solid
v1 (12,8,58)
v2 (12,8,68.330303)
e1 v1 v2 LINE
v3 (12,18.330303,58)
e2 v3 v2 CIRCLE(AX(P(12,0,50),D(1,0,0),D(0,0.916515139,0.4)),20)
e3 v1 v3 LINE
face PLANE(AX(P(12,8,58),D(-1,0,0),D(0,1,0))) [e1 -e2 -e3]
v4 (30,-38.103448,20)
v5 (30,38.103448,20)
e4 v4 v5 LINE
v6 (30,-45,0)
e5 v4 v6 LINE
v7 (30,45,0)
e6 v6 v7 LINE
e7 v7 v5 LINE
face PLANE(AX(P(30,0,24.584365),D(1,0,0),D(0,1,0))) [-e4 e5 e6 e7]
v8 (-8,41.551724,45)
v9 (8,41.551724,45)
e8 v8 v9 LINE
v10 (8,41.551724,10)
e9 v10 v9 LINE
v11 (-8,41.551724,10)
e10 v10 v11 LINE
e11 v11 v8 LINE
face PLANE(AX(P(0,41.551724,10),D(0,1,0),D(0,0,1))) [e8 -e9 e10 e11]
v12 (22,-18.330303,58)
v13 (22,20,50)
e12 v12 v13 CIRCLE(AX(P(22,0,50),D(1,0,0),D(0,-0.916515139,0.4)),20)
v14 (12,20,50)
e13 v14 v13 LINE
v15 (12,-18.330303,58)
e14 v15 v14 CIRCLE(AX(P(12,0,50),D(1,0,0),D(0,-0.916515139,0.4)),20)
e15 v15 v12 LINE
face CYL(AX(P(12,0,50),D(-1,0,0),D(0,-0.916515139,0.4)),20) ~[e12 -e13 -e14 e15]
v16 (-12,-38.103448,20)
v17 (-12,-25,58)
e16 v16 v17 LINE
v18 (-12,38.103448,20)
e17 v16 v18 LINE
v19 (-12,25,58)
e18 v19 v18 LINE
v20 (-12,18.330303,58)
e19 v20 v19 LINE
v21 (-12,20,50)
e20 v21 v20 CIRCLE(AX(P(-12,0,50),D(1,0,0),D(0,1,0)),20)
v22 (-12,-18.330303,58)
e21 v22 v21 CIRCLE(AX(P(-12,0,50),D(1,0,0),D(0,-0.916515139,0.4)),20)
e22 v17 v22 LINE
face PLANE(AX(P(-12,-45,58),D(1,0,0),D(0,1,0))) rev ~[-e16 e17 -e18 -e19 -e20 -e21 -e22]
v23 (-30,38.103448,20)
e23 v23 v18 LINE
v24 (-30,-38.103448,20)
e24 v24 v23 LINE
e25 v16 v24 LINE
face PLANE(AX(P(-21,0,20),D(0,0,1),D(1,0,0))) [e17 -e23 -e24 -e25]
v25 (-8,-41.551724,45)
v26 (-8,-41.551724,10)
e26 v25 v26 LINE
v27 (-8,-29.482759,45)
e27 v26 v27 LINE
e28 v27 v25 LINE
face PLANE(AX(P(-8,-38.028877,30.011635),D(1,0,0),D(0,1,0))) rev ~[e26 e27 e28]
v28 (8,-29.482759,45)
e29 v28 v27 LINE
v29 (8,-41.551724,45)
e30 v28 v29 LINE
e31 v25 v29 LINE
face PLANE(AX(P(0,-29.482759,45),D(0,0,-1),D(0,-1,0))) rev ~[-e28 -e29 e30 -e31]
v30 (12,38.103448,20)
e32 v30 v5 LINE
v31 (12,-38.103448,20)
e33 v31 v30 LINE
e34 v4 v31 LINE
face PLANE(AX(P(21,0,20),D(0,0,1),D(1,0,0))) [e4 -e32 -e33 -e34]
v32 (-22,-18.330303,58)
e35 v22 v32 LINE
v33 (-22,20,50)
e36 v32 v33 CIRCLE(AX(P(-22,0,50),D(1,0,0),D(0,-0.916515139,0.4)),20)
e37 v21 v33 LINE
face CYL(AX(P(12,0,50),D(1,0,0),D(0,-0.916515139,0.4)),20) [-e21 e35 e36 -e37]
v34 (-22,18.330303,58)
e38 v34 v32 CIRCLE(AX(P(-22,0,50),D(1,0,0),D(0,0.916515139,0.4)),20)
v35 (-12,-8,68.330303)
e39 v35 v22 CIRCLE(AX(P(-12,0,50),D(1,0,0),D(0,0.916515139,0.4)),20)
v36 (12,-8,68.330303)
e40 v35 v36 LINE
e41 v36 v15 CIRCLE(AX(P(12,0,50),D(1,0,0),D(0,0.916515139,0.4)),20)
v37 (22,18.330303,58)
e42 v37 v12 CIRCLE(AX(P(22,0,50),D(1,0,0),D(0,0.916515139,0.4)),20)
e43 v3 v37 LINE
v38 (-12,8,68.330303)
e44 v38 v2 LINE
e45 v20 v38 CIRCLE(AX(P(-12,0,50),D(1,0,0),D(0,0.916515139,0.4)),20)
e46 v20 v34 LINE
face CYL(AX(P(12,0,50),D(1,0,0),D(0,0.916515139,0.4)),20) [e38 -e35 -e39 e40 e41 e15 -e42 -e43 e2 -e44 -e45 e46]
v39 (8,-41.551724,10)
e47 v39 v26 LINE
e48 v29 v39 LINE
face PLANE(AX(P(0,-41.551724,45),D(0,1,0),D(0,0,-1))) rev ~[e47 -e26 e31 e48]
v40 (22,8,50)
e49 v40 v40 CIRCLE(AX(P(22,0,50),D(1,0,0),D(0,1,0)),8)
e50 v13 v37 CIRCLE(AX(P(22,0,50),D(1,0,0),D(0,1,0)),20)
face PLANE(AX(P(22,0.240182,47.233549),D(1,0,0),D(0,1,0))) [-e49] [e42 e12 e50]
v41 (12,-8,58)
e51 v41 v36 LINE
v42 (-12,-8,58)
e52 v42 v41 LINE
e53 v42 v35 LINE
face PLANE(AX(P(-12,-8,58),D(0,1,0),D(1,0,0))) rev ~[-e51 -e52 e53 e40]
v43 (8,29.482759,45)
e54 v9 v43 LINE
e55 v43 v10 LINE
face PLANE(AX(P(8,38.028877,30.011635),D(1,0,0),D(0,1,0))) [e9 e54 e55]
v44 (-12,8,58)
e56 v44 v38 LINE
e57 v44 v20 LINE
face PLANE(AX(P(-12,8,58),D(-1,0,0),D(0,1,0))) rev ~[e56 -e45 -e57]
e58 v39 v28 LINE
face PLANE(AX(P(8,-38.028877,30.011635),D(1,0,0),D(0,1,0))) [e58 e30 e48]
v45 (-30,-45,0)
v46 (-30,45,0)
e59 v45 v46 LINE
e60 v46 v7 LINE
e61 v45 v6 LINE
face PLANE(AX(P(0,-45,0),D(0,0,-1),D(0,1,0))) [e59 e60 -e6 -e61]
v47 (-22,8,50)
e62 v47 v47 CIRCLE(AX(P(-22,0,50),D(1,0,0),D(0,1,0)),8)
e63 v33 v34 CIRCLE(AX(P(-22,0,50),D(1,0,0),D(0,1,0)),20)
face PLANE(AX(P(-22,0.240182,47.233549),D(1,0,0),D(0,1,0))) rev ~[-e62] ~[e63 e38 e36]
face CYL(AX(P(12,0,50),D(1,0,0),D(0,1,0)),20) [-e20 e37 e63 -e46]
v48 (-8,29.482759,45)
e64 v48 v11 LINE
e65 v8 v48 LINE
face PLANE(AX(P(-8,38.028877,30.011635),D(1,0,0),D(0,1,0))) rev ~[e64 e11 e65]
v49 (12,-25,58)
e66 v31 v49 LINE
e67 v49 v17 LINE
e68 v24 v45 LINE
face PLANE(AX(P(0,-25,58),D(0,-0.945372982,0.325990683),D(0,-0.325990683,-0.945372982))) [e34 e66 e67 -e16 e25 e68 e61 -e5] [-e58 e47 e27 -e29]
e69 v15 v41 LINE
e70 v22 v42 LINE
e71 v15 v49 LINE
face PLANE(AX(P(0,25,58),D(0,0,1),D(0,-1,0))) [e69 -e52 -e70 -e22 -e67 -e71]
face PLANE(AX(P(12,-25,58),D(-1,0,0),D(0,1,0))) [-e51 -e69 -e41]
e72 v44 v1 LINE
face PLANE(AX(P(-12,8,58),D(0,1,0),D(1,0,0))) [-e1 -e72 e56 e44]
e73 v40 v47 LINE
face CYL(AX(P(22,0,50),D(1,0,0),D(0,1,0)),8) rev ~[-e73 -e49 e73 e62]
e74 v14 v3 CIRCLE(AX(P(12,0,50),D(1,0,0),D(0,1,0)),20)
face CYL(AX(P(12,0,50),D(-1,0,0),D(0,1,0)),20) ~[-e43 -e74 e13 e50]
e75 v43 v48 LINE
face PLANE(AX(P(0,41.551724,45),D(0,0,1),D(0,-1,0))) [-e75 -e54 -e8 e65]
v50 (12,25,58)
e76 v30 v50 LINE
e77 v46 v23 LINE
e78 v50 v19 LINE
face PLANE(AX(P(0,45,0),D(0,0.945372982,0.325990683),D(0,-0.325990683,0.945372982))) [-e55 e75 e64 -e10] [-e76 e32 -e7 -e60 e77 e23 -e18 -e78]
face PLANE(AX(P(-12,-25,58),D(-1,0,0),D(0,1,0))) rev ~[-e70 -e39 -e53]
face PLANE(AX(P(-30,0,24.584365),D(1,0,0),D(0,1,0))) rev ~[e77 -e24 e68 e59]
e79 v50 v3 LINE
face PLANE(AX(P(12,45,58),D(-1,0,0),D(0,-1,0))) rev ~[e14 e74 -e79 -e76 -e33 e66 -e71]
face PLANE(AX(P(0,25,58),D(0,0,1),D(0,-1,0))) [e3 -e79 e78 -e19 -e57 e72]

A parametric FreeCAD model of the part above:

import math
import FreeCAD as App
import Part
import Sketcher


def add_polygon(sketch, points):
    """Adds a closed chain of lines whose ends are joined by coincident constraints."""
    first, n = sketch.GeometryCount, len(points)
    for a, b in zip(points, points[1:] + points[:1]):
        sketch.addGeometry(Part.LineSegment(App.Vector(*a, 0), App.Vector(*b, 0)), False)
    for i in range(n):
        sketch.addConstraint(Sketcher.Constraint("Coincident", first + i, 2, first + (i + 1) % n, 1))

doc = App.newDocument("Part")
body = doc.addObject("PartDesign::Body", "Body")

# Sketch on YZ plane
sketch1 = body.newObject("Sketcher::SketchObject", "Sketch")
sketch1.AttachmentSupport = (doc.getObject("YZ_Plane"), [""])
sketch1.MapMode = "FlatFace"
add_polygon(sketch1, [(-25, 58), (-45, 0), (45, 0), (25, 58)])  # lines 0-3
sketch1.addConstraint([
    Sketcher.Constraint("Horizontal", 1),
    Sketcher.Constraint("Horizontal", 3),
    Sketcher.Constraint("Symmetric", 0, 2, 1, 2, -1, 1),
    Sketcher.Constraint("Equal", 0, 2),
    Sketcher.Constraint("DistanceX", 1, 1, 1, 2, 90.0),
    Sketcher.Constraint("DistanceX", 3, 2, 3, 1, 50.0),
    Sketcher.Constraint("DistanceY", -1, 1, 2, 2, 58.0),
])
pad1 = body.newObject("PartDesign::Pad", "Pad")
pad1.Profile = sketch1
pad1.Length = 60
pad1.Midplane = True

# Sketch on XY plane
sketch2 = body.newObject("Sketcher::SketchObject", "Sketch001")
sketch2.AttachmentSupport = (doc.getObject("XY_Plane"), [""])
sketch2.MapMode = "FlatFace"
sketch2.AttachmentOffset = App.Placement(App.Vector(0, 0, 58), App.Rotation())
add_polygon(sketch2, [(12, -45), (30, -45), (30, 45), (12, 45)])  # lines 0-3
sketch2.addConstraint([
    Sketcher.Constraint("Horizontal", 0),
    Sketcher.Constraint("Vertical", 1),
    Sketcher.Constraint("Horizontal", 2),
    Sketcher.Constraint("Vertical", 3),
    Sketcher.Constraint("DistanceX", 0, 1, 0, 2, 18.0),
    Sketcher.Constraint("DistanceY", 1, 1, 1, 2, 90.0),
    Sketcher.Constraint("DistanceX", -1, 1, 0, 2, 30.0),
    Sketcher.Constraint("DistanceY", 0, 2, -1, 1, 45.0),
])
pocket1 = body.newObject("PartDesign::Pocket", "Pocket")
pocket1.Profile = sketch2
pocket1.Length = 25

# Sketch on XY plane
sketch3 = body.newObject("Sketcher::SketchObject", "Sketch002")
sketch3.AttachmentSupport = (doc.getObject("XY_Plane"), [""])
sketch3.MapMode = "FlatFace"
sketch3.AttachmentOffset = App.Placement(App.Vector(0, 0, 58), App.Rotation())
add_polygon(sketch3, [(12, 45), (12, -45), (30, -45), (30, 45)])  # lines 0-3
add_polygon(sketch3, [(-30, 45), (-30, -45), (-12, -45), (-12, 45)])  # lines 4-7
sketch3.addConstraint([
    Sketcher.Constraint("Vertical", 0),
    Sketcher.Constraint("Horizontal", 1),
    Sketcher.Constraint("Vertical", 2),
    Sketcher.Constraint("Horizontal", 3),
    Sketcher.Constraint("Vertical", 4),
    Sketcher.Constraint("Horizontal", 5),
    Sketcher.Constraint("Vertical", 6),
    Sketcher.Constraint("Horizontal", 7),
    Sketcher.Constraint("Symmetric", 2, 2, 4, 2, -1, 1),
    Sketcher.Constraint("Symmetric", 0, 2, 6, 2, -1, 1),
    Sketcher.Constraint("Horizontal", 1, 2, 4, 2),
    Sketcher.Constraint("DistanceX", 1, 1, 1, 2, 18.0),
    Sketcher.Constraint("DistanceY", 0, 2, 0, 1, 90.0),
    Sketcher.Constraint("DistanceX", -1, 1, 0, 2, 12.0),
])
pocket2 = body.newObject("PartDesign::Pocket", "Pocket001")
pocket2.Profile = sketch3
pocket2.Length = 38

# Sketch on YZ plane
sketch4 = body.newObject("Sketcher::SketchObject", "Sketch003")
sketch4.AttachmentSupport = (doc.getObject("YZ_Plane"), [""])
sketch4.MapMode = "FlatFace"
add_polygon(sketch4, [(-29.482759, 45), (-41.551724, 45), (-41.551724, 10)])  # lines 0-2
add_polygon(sketch4, [(41.551724, 10), (41.551724, 45), (29.482759, 45)])  # lines 3-5
sketch4.addConstraint([
    Sketcher.Constraint("Horizontal", 0),
    Sketcher.Constraint("Vertical", 1),
    Sketcher.Constraint("Vertical", 3),
    Sketcher.Constraint("Horizontal", 4),
    Sketcher.Constraint("Symmetric", 0, 2, 3, 2, -2),
    Sketcher.Constraint("Horizontal", 1, 2, 5, 2),
    Sketcher.Constraint("Equal", 0, 4),
    Sketcher.Constraint("DistanceY", 1, 2, 1, 1, 35.0),
    Sketcher.Constraint("DistanceY", -1, 1, 0, 2, 45.0),
    Sketcher.Constraint("DistanceX", 0, 2, 0, 1, 12.068966),
    Sketcher.Constraint("DistanceX", 2, 2, -1, 1, 29.482759),
])
pad2 = body.newObject("PartDesign::Pad", "Pad001")
pad2.Profile = sketch4
pad2.Length = 16
pad2.Midplane = True

# Sketch on YZ plane
sketch5 = body.newObject("Sketcher::SketchObject", "Sketch004")
sketch5.AttachmentSupport = (doc.getObject("YZ_Plane"), [""])
sketch5.MapMode = "FlatFace"
add_polygon(sketch5, [(-29.482759, 45), (-41.551724, 45), (-41.551724, 10)])  # lines 0-2
add_polygon(sketch5, [(41.551724, 10), (41.551724, 45), (29.482759, 45)])  # lines 3-5
sketch5.addConstraint([
    Sketcher.Constraint("Horizontal", 0),
    Sketcher.Constraint("Vertical", 1),
    Sketcher.Constraint("Vertical", 3),
    Sketcher.Constraint("Horizontal", 4),
    Sketcher.Constraint("Symmetric", 0, 2, 3, 2, -2),
    Sketcher.Constraint("Horizontal", 1, 2, 5, 2),
    Sketcher.Constraint("Equal", 0, 4),
    Sketcher.Constraint("DistanceY", 1, 2, 1, 1, 35.0),
    Sketcher.Constraint("DistanceY", -1, 1, 0, 2, 45.0),
    Sketcher.Constraint("DistanceX", 0, 2, 0, 1, 12.068966),
    Sketcher.Constraint("DistanceX", 2, 2, -1, 1, 29.482759),
])
pad3 = body.newObject("PartDesign::Pad", "Pad002")
pad3.Profile = sketch5
pad3.Length = 16
pad3.Midplane = True

# Sketch on YZ plane
sketch6 = body.newObject("Sketcher::SketchObject", "Sketch005")
sketch6.AttachmentSupport = (doc.getObject("YZ_Plane"), [""])
sketch6.MapMode = "FlatFace"
sketch6.AttachmentOffset = App.Placement(App.Vector(0, 0, 12), App.Rotation())
sketch6.addGeometry([
    Part.ArcOfCircle(Part.Circle(App.Vector(0, 50, 0), App.Vector(0, 0, 1), 20), math.radians(156.421822), math.radians(360)),
    Part.ArcOfCircle(Part.Circle(App.Vector(0, 50, 0), App.Vector(0, 0, 1), 20), math.radians(0), math.radians(23.578178)),
    Part.ArcOfCircle(Part.Circle(App.Vector(0, 50, 0), App.Vector(0, 0, 1), 20), math.radians(23.578178), math.radians(156.421822)),
], False)
sketch6.addConstraint([
    Sketcher.Constraint("Tangent", 0, 2, 1, 1),
    Sketcher.Constraint("Tangent", 1, 2, 2, 1),
    Sketcher.Constraint("Tangent", 2, 2, 0, 1),
    Sketcher.Constraint("Symmetric", 1, 2, 2, 2, -2),
    Sketcher.Constraint("Horizontal", 2, 3, 0, 2),
    Sketcher.Constraint("Radius", 0, 20.0),
    Sketcher.Constraint("DistanceY", -1, 1, 0, 3, 50.0),
    Sketcher.Constraint("DistanceY", -1, 1, 1, 2, 58.0),
])
pad4 = body.newObject("PartDesign::Pad", "Pad003")
pad4.Profile = sketch6
pad4.Type = "TwoLengths"
pad4.Length = 10
pad4.Length2 = 34

# Sketch on XY plane
sketch7 = body.newObject("Sketcher::SketchObject", "Sketch006")
sketch7.AttachmentSupport = (doc.getObject("XY_Plane"), [""])
sketch7.MapMode = "FlatFace"
sketch7.AttachmentOffset = App.Placement(App.Vector(0, 0, 58), App.Rotation())
add_polygon(sketch7, [(-12, -8), (-12, -25), (12, -25), (12, -8)])  # lines 0-3
add_polygon(sketch7, [(-12, 25), (-12, 8), (12, 8), (12, 25)])  # lines 4-7
sketch7.addConstraint([
    Sketcher.Constraint("Vertical", 0),
    Sketcher.Constraint("Horizontal", 1),
    Sketcher.Constraint("Vertical", 2),
    Sketcher.Constraint("Horizontal", 3),
    Sketcher.Constraint("Vertical", 4),
    Sketcher.Constraint("Horizontal", 5),
    Sketcher.Constraint("Vertical", 6),
    Sketcher.Constraint("Horizontal", 7),
    Sketcher.Constraint("Symmetric", 2, 2, 4, 2, -1, 1),
    Sketcher.Constraint("Symmetric", 0, 2, 6, 2, -1, 1),
    Sketcher.Constraint("Vertical", 3, 2, 4, 2),
    Sketcher.Constraint("DistanceX", 1, 1, 1, 2, 24.0),
    Sketcher.Constraint("DistanceY", 0, 2, 0, 1, 17.0),
    Sketcher.Constraint("DistanceY", 0, 2, -1, 1, 25.0),
])
pocket3 = body.newObject("PartDesign::Pocket", "Pocket002")
pocket3.Profile = sketch7
pocket3.Type = "ThroughAll"
pocket3.Reversed = True

# Sketch on YZ plane
sketch8 = body.newObject("Sketcher::SketchObject", "Sketch007")
sketch8.AttachmentSupport = (doc.getObject("YZ_Plane"), [""])
sketch8.MapMode = "FlatFace"
sketch8.AttachmentOffset = App.Placement(App.Vector(0, 0, 22), App.Rotation())
sketch8.addGeometry(Part.Circle(App.Vector(0, 50, 0), App.Vector(0, 0, 1), 8), False)
sketch8.addConstraint([
    Sketcher.Constraint("PointOnObject", 0, 3, -2),
    Sketcher.Constraint("Diameter", 0, 16.0),
    Sketcher.Constraint("DistanceY", -1, 1, 0, 3, 50.0),
])
pocket4 = body.newObject("PartDesign::Pocket", "Pocket003")
pocket4.Profile = sketch8
pocket4.Type = "ThroughAll"

doc.recompute()
